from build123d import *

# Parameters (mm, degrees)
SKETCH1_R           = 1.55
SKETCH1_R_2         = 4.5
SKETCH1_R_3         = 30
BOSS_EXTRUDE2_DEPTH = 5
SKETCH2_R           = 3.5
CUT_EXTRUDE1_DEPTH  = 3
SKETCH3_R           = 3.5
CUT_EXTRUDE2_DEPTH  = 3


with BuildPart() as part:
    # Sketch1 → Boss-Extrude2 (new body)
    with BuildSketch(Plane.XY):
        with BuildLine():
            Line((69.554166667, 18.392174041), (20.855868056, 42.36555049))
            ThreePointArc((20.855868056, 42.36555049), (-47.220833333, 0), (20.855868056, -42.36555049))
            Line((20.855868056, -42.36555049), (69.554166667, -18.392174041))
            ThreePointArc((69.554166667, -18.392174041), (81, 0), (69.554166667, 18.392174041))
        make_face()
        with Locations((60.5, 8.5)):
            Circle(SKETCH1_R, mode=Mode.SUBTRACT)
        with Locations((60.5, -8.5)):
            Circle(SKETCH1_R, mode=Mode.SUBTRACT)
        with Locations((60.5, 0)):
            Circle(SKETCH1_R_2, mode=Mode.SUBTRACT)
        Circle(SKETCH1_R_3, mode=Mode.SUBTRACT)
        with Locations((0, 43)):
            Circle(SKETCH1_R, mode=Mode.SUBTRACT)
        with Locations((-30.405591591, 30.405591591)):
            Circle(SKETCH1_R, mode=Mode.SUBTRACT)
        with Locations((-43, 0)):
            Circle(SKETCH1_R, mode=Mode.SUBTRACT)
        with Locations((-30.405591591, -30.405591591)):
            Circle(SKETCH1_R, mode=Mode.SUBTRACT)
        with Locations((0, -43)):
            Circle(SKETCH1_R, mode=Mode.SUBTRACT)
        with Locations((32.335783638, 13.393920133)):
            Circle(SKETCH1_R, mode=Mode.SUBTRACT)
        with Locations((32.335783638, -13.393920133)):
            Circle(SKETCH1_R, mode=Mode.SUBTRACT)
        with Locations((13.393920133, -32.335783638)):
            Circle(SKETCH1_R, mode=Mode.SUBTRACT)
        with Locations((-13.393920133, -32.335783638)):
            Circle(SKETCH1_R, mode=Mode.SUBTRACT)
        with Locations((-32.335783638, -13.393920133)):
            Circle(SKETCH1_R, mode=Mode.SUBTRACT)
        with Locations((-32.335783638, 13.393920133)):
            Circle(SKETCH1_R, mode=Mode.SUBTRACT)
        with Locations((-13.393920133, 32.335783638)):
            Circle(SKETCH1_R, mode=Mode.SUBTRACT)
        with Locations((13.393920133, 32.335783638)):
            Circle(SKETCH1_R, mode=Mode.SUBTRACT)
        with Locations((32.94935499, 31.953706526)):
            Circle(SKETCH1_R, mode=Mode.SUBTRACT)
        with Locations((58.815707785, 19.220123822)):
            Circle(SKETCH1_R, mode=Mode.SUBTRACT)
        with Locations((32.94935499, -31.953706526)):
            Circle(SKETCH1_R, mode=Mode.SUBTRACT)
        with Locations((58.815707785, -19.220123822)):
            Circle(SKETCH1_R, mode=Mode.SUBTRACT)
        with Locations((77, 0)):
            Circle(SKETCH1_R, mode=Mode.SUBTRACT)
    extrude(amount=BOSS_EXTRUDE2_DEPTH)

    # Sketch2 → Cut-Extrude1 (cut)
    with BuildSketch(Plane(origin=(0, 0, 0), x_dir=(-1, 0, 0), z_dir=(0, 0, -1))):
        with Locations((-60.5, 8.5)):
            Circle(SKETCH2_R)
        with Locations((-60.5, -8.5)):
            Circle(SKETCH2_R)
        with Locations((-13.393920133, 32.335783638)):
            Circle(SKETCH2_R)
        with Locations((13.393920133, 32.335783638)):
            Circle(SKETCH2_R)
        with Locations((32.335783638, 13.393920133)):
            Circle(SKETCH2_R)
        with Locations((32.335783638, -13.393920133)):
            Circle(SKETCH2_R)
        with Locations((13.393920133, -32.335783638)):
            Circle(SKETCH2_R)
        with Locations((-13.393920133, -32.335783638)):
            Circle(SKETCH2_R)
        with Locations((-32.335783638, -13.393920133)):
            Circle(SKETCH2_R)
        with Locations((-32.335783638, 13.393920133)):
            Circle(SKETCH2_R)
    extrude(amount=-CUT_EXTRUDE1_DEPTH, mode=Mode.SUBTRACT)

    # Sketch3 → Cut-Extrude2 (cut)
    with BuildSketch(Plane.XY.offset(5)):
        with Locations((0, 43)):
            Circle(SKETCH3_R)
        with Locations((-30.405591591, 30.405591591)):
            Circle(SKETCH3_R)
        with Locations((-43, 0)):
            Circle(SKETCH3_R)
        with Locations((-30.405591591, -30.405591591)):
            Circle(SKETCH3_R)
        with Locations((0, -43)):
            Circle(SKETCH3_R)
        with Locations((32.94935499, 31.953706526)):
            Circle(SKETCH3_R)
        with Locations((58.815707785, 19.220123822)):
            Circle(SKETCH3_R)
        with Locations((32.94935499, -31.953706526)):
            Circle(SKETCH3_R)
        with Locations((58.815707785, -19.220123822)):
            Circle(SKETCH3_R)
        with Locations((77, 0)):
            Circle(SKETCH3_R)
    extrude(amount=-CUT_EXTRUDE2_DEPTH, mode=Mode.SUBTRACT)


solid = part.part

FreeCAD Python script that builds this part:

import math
import FreeCAD as App
import Part
import Sketcher
from FreeCAD import Vector
Q = App.Units.Quantity

doc = App.newDocument("Part")
body = doc.addObject("PartDesign::Body", "Body")

# Sketch on XY plane
sketch1 = body.newObject("Sketcher::SketchObject", "Sketch")
sketch1.AttachmentSupport = (doc.getObject("XY_Plane"), [""])
sketch1.MapMode = "FlatFace"
sketch1.addGeometry([
    Part.LineSegment(Vector(69.554167, 18.392174, 0), Vector(20.855868, 42.36555, 0)),  # 0
    Part.ArcOfCircle(Part.Circle(Vector(0, 0, 0), Vector(0, 0, 1), 47.220833), math.radians(63.789731), math.radians(296.210269)),  # 1
    Part.LineSegment(Vector(20.855868, -42.36555, 0), Vector(69.554167, -18.392174, 0)),  # 2
    Part.ArcOfCircle(Part.Circle(Vector(60.5, 0, 0), Vector(0, 0, 1), 20.5), math.radians(-63.789731), math.radians(63.789731)),  # 3
    Part.Circle(Vector(-30.405592, -30.405592, 0), Vector(0, 0, 1), 1.55),  # 4
    Part.Circle(Vector(0, -43, 0), Vector(0, 0, 1), 1.55),  # 5
    Part.Circle(Vector(-13.39392, -32.335784, 0), Vector(0, 0, 1), 1.55),  # 6
    Part.Circle(Vector(13.39392, -32.335784, 0), Vector(0, 0, 1), 1.55),  # 7
    Part.Circle(Vector(-32.335784, -13.39392, 0), Vector(0, 0, 1), 1.55),  # 8
    Part.Circle(Vector(32.949355, -31.953707, 0), Vector(0, 0, 1), 1.55),  # 9
    Part.Circle(Vector(32.335784, -13.39392, 0), Vector(0, 0, 1), 1.55),  # 10
    Part.Circle(Vector(58.815708, -19.220124, 0), Vector(0, 0, 1), 1.55),  # 11
    Part.Circle(Vector(60.5, -8.5, 0), Vector(0, 0, 1), 1.55),  # 12
    Part.Circle(Vector(-43, 0, 0), Vector(0, 0, 1), 1.55),  # 13
    Part.Circle(Vector(-32.335784, 13.39392, 0), Vector(0, 0, 1), 1.55),  # 14
    Part.Circle(Vector(0, 0, 0), Vector(0, 0, 1), 30),  # 15
    Part.Circle(Vector(-30.405592, 30.405592, 0), Vector(0, 0, 1), 1.55),  # 16
    Part.Circle(Vector(-13.39392, 32.335784, 0), Vector(0, 0, 1), 1.55),  # 17
    Part.Circle(Vector(13.39392, 32.335784, 0), Vector(0, 0, 1), 1.55),  # 18
    Part.Circle(Vector(0, 43, 0), Vector(0, 0, 1), 1.55),  # 19
    Part.Circle(Vector(32.335784, 13.39392, 0), Vector(0, 0, 1), 1.55),  # 20
    Part.Circle(Vector(60.5, 0, 0), Vector(0, 0, 1), 4.5),  # 21
    Part.Circle(Vector(60.5, 8.5, 0), Vector(0, 0, 1), 1.55),  # 22
    Part.Circle(Vector(77, 0, 0), Vector(0, 0, 1), 1.55),  # 23
    Part.Circle(Vector(58.815708, 19.220124, 0), Vector(0, 0, 1), 1.55),  # 24
    Part.Circle(Vector(32.949355, 31.953707, 0), Vector(0, 0, 1), 1.55),  # 25
], False)
sketch1.addConstraint([
    Sketcher.Constraint("Tangent", 0, 2, 1, 1),
    Sketcher.Constraint("Tangent", 1, 2, 2, 1),
    Sketcher.Constraint("Tangent", 2, 2, 3, 1),
    Sketcher.Constraint("Tangent", 3, 2, 0, 1),
    Sketcher.Constraint("Coincident", 1, 3, -1, 1),
    Sketcher.Constraint("Coincident", 15, 3, -1, 1),
    Sketcher.Constraint("Coincident", 21, 3, 3, 3),
    Sketcher.Constraint("Equal", 4, 5),
    Sketcher.Constraint("Equal", 5, 6),
    Sketcher.Constraint("Equal", 6, 7),
    Sketcher.Constraint("Equal", 7, 8),
    Sketcher.Constraint("Equal", 8, 9),
    Sketcher.Constraint("Equal", 9, 10),
    Sketcher.Constraint("Equal", 10, 11),
    Sketcher.Constraint("Equal", 11, 12),
    Sketcher.Constraint("Equal", 12, 13),
    Sketcher.Constraint("Equal", 13, 14),
    Sketcher.Constraint("Equal", 14, 16),
    Sketcher.Constraint("Equal", 16, 17),
    Sketcher.Constraint("Equal", 17, 18),
    Sketcher.Constraint("Equal", 18, 19),
    Sketcher.Constraint("Equal", 19, 20),
    Sketcher.Constraint("Equal", 20, 22),
    Sketcher.Constraint("Equal", 22, 23),
    Sketcher.Constraint("Equal", 23, 24),
    Sketcher.Constraint("Equal", 24, 25),
    Sketcher.Constraint("Symmetric", 10, 3, 14, 3, -1, 1),
    Sketcher.Constraint("Symmetric", 7, 3, 17, 3, -1, 1),
    Sketcher.Constraint("Symmetric", 6, 3, 18, 3, -1, 1),
    Sketcher.Constraint("Symmetric", 5, 3, 19, 3, -1, 1),
    Sketcher.Constraint("Symmetric", 8, 3, 20, 3, -1, 1),
    Sketcher.Constraint("Symmetric", 6, 3, 7, 3, -2),
    Sketcher.Constraint("Symmetric", 8, 3, 10, 3, -2),
    Sketcher.Constraint("Symmetric", 4, 3, 16, 3, -1),
    Sketcher.Constraint("Symmetric", 12, 3, 22, 3, -1),
    Sketcher.Constraint("Symmetric", 11, 3, 24, 3, -1),
    Sketcher.Constraint("Symmetric", 9, 3, 25, 3, -1),
    Sketcher.Constraint("PointOnObject", 3, 3, -1),
    Sketcher.Constraint("PointOnObject", 5, 3, -2),
    Sketcher.Constraint("PointOnObject", 13, 3, -1),
    Sketcher.Constraint("PointOnObject", 23, 3, -1),
    Sketcher.Constraint("Vertical", 3, 3, 12, 3),
    Sketcher.Constraint("Diameter", 15, Q("60 mm")),
    Sketcher.Constraint("Diameter", 21, Q("9 mm")),
    Sketcher.Constraint("Diameter", 4, Q("3.1 mm")),
    Sketcher.Constraint("Radius", 3, Q("20.5 mm")),
    Sketcher.Constraint("DistanceY", 5, 3, -1, 1, Q("43 mm")),
    Sketcher.Constraint("DistanceX", 13, 3, -1, 1, Q("43 mm")),
    Sketcher.Constraint("DistanceX", -1, 1, 23, 3, Q("77 mm")),
    Sketcher.Constraint("DistanceY", 12, 3, 22, 3, Q("17 mm")),
    Sketcher.Constraint("DistanceX", -1, 1, 3, 3, Q("60.5 mm")),
    Sketcher.Constraint("Radius", 1, Q("47.220833 mm")),
    Sketcher.Constraint("DistanceX", 4, 3, -1, 1, Q("30.405592 mm")),
    Sketcher.Constraint("DistanceY", 4, 3, -1, 1, Q("30.405592 mm")),
    Sketcher.Constraint("DistanceX", 6, 3, -1, 1, Q("13.39392 mm")),
    Sketcher.Constraint("DistanceY", 8, 3, -1, 1, Q("13.39392 mm")),
    Sketcher.Constraint("DistanceX", 10, 3, 9, 3, Q("0.613571 mm")),
    Sketcher.Constraint("DistanceY", 7, 3, 11, 3, Q("13.11566 mm")),
    Sketcher.Constraint("DistanceX", 11, 3, 2, 2, Q("10.738459 mm")),
    Sketcher.Constraint("DistanceY", 11, 3, 2, 2, Q("0.82795 mm")),
    Sketcher.Constraint("DistanceX", 8, 3, -1, 1, Q("32.335784 mm")),
    Sketcher.Constraint("DistanceY", 9, 3, -1, 1, Q("31.953707 mm")),
])
pad1 = body.newObject("PartDesign::Pad", "Pad")
pad1.Profile = sketch1
pad1.Length = 5

# Sketch on XY plane
sketch2 = body.newObject("Sketcher::SketchObject", "Sketch001")
sketch2.AttachmentSupport = (doc.getObject("XY_Plane"), [""])
sketch2.MapMode = "FlatFace"
sketch2.addGeometry([
    Part.Circle(Vector(60.5, 8.5, 0), Vector(0, 0, 1), 3.5),  # 0
    Part.Circle(Vector(60.5, -8.5, 0), Vector(0, 0, 1), 3.5),  # 1
    Part.Circle(Vector(13.39392, 32.335784, 0), Vector(0, 0, 1), 3.5),  # 2
    Part.Circle(Vector(-13.39392, 32.335784, 0), Vector(0, 0, 1), 3.5),  # 3
    Part.Circle(Vector(-32.335784, 13.39392, 0), Vector(0, 0, 1), 3.5),  # 4
    Part.Circle(Vector(-32.335784, -13.39392, 0), Vector(0, 0, 1), 3.5),  # 5
    Part.Circle(Vector(-13.39392, -32.335784, 0), Vector(0, 0, 1), 3.5),  # 6
    Part.Circle(Vector(13.39392, -32.335784, 0), Vector(0, 0, 1), 3.5),  # 7
    Part.Circle(Vector(32.335784, -13.39392, 0), Vector(0, 0, 1), 3.5),  # 8
    Part.Circle(Vector(32.335784, 13.39392, 0), Vector(0, 0, 1), 3.5),  # 9
], False)
sketch2.addConstraint([
    Sketcher.Constraint("Equal", 0, 1),
    Sketcher.Constraint("Equal", 1, 2),
    Sketcher.Constraint("Equal", 2, 3),
    Sketcher.Constraint("Equal", 3, 4),
    Sketcher.Constraint("Equal", 4, 5),
    Sketcher.Constraint("Equal", 5, 6),
    Sketcher.Constraint("Equal", 6, 7),
    Sketcher.Constraint("Equal", 7, 8),
    Sketcher.Constraint("Equal", 8, 9),
    Sketcher.Constraint("Symmetric", 2, 3, 6, 3, -1, 1),
    Sketcher.Constraint("Symmetric", 3, 3, 7, 3, -1, 1),
    Sketcher.Constraint("Symmetric", 4, 3, 8, 3, -1, 1),
    Sketcher.Constraint("Symmetric", 5, 3, 9, 3, -1, 1),
    Sketcher.Constraint("Symmetric", 2, 3, 3, 3, -2),
    Sketcher.Constraint("Symmetric", 5, 3, 8, 3, -2),
    Sketcher.Constraint("Symmetric", 0, 3, 1, 3, -1),
    Sketcher.Constraint("Diameter", 0, Q("7 mm")),
    Sketcher.Constraint("DistanceY", 1, 3, 0, 3, Q("17 mm")),
    Sketcher.Constraint("DistanceX", -1, 1, 0, 3, Q("60.5 mm")),
    Sketcher.Constraint("DistanceX", -1, 1, 2, 3, Q("13.39392 mm")),
    Sketcher.Constraint("DistanceY", -1, 1, 4, 3, Q("13.39392 mm")),
    Sketcher.Constraint("DistanceY", -1, 1, 2, 3, Q("32.335784 mm")),
    Sketcher.Constraint("DistanceX", 4, 3, -1, 1, Q("32.335784 mm")),
])
pocket1 = body.newObject("PartDesign::Pocket", "Pocket")
pocket1.Profile = sketch2
pocket1.Length = 3
pocket1.Reversed = True

# Sketch on XY plane
sketch3 = body.newObject("Sketcher::SketchObject", "Sketch002")
sketch3.AttachmentSupport = (doc.getObject("XY_Plane"), [""])
sketch3.MapMode = "FlatFace"
sketch3.AttachmentOffset = App.Placement(Vector(0, 0, 5), App.Rotation())
sketch3.addGeometry([
    Part.Circle(Vector(0, 43, 0), Vector(0, 0, 1), 3.5),  # 0
    Part.Circle(Vector(-30.405592, 30.405592, 0), Vector(0, 0, 1), 3.5),  # 1
    Part.Circle(Vector(-43, 0, 0), Vector(0, 0, 1), 3.5),  # 2
    Part.Circle(Vector(-30.405592, -30.405592, 0), Vector(0, 0, 1), 3.5),  # 3
    Part.Circle(Vector(0, -43, 0), Vector(0, 0, 1), 3.5),  # 4
    Part.Circle(Vector(32.949355, 31.953707, 0), Vector(0, 0, 1), 3.5),  # 5
    Part.Circle(Vector(58.815708, 19.220124, 0), Vector(0, 0, 1), 3.5),  # 6
    Part.Circle(Vector(32.949355, -31.953707, 0), Vector(0, 0, 1), 3.5),  # 7
    Part.Circle(Vector(58.815708, -19.220124, 0), Vector(0, 0, 1), 3.5),  # 8
    Part.Circle(Vector(77, 0, 0), Vector(0, 0, 1), 3.5),  # 9
], False)
sketch3.addConstraint([
    Sketcher.Constraint("Equal", 0, 1),
    Sketcher.Constraint("Equal", 1, 2),
    Sketcher.Constraint("Equal", 2, 3),
    Sketcher.Constraint("Equal", 3, 4),
    Sketcher.Constraint("Equal", 4, 5),
    Sketcher.Constraint("Equal", 5, 6),
    Sketcher.Constraint("Equal", 6, 7),
    Sketcher.Constraint("Equal", 7, 8),
    Sketcher.Constraint("Equal", 8, 9),
    Sketcher.Constraint("Symmetric", 0, 3, 4, 3, -1, 1),
    Sketcher.Constraint("Symmetric", 1, 3, 3, 3, -1),
    Sketcher.Constraint("Symmetric", 5, 3, 7, 3, -1),
    Sketcher.Constraint("Symmetric", 6, 3, 8, 3, -1),
    Sketcher.Constraint("PointOnObject", 0, 3, -2),
    Sketcher.Constraint("PointOnObject", 2, 3, -1),
    Sketcher.Constraint("PointOnObject", 9, 3, -1),
    Sketcher.Constraint("Diameter", 0, Q("7 mm")),
    Sketcher.Constraint("DistanceY", -1, 1, 0, 3, Q("43 mm")),
    Sketcher.Constraint("DistanceX", 2, 3, -1, 1, Q("43 mm")),
    Sketcher.Constraint("DistanceX", -1, 1, 9, 3, Q("77 mm")),
    Sketcher.Constraint("DistanceY", 3, 3, 5, 3, Q("62.359298 mm")),
    Sketcher.Constraint("DistanceX", 1, 3, 6, 3, Q("89.221299 mm")),
    Sketcher.Constraint("DistanceX", 1, 3, -1, 1, Q("30.405592 mm")),
    Sketcher.Constraint("DistanceY", -1, 1, 1, 3, Q("30.405592 mm")),
    Sketcher.Constraint("DistanceY", 7, 3, 6, 3, Q("51.17383 mm")),
    Sketcher.Constraint("DistanceX", -1, 1, 5, 3, Q("32.949355 mm")),
])
pocket2 = body.newObject("PartDesign::Pocket", "Pocket001")
pocket2.Profile = sketch3
pocket2.Length = 3

doc.recompute()
